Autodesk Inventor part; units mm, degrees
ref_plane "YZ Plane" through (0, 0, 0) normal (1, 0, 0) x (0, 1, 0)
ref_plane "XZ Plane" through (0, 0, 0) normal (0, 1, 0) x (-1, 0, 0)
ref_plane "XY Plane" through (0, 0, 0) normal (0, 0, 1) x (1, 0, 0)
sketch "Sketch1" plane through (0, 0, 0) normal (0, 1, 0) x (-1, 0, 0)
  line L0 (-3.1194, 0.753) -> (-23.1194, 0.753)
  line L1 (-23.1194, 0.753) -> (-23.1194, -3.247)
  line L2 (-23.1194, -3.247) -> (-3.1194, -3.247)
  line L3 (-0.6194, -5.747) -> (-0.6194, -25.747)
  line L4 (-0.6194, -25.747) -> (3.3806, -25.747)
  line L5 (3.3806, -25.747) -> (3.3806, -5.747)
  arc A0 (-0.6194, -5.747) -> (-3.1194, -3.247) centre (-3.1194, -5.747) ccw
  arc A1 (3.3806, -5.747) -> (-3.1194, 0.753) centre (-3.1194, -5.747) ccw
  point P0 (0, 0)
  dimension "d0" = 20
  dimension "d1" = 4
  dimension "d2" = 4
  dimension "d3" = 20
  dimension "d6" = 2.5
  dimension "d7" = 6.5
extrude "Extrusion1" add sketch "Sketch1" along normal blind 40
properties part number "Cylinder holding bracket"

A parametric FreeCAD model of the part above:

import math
import FreeCAD as App
import Part
import Sketcher
Q = App.Units.Quantity

doc = App.newDocument("Part")
body = doc.addObject("PartDesign::Body", "Body")

# Sketch on XZ plane
sketch1 = doc.addObject("Sketcher::SketchObject", "Sketch")
body.addObject(sketch1)
sketch1.AttachmentSupport = (doc.XZ_Plane, [""])
sketch1.MapMode = "FlatFace"
sketch1.addGeometry([
    Part.ArcOfCircle(Part.Circle(App.Vector(3.1, -5.7, 0), App.Vector(0, 0, 1), 6.5), math.radians(90), math.radians(180)),  # 0
    Part.LineSegment(App.Vector(3.1, 0.8, 0), App.Vector(23.1, 0.8, 0)),  # 1
    Part.LineSegment(App.Vector(23.1, 0.8, 0), App.Vector(23.1, -3.2, 0)),  # 2
    Part.LineSegment(App.Vector(23.1, -3.2, 0), App.Vector(3.1, -3.2, 0)),  # 3
    Part.ArcOfCircle(Part.Circle(App.Vector(3.1, -5.7, 0), App.Vector(0, 0, 1), 2.5), math.radians(90), math.radians(180)),  # 4
    Part.LineSegment(App.Vector(0.6, -5.7, 0), App.Vector(0.6, -25.7, 0)),  # 5
    Part.LineSegment(App.Vector(0.6, -25.7, 0), App.Vector(-3.4, -25.7, 0)),  # 6
    Part.LineSegment(App.Vector(-3.4, -25.7, 0), App.Vector(-3.4, -5.7, 0)),  # 7
], False)
sketch1.addConstraint([
    Sketcher.Constraint("Tangent", 0, 1, 1, 1),
    Sketcher.Constraint("Coincident", 1, 2, 2, 1),
    Sketcher.Constraint("Coincident", 2, 2, 3, 1),
    Sketcher.Constraint("Tangent", 3, 2, 4, 1),
    Sketcher.Constraint("Tangent", 4, 2, 5, 1),
    Sketcher.Constraint("Coincident", 5, 2, 6, 1),
    Sketcher.Constraint("Coincident", 6, 2, 7, 1),
    Sketcher.Constraint("Tangent", 7, 2, 0, 2),
    Sketcher.Constraint("Horizontal", 1),
    Sketcher.Constraint("Vertical", 2),
    Sketcher.Constraint("Horizontal", 3),
    Sketcher.Constraint("Vertical", 5),
    Sketcher.Constraint("Horizontal", 6),
    Sketcher.Constraint("Vertical", 7),
    Sketcher.Constraint("Coincident", 4, 3, 0, 3),
    Sketcher.Constraint("Equal", 3, 5),
    Sketcher.Constraint("Radius", 0, Q("6.5 mm")),
    Sketcher.Constraint("Radius", 4, Q("2.5 mm")),
    Sketcher.Constraint("DistanceX", 1, 1, 1, 2, Q("20 mm")),
    Sketcher.Constraint("DistanceY", 0, 3, -1, 1, Q("5.747 mm")),
    Sketcher.Constraint("DistanceX", -1, 1, 0, 3, Q("3.1194 mm")),
])
pad1 = doc.addObject("PartDesign::Pad", "Pad")
body.addObject(pad1)
pad1.Profile = sketch1
pad1.Length = 40
pad1.Reversed = True

doc.recompute()
